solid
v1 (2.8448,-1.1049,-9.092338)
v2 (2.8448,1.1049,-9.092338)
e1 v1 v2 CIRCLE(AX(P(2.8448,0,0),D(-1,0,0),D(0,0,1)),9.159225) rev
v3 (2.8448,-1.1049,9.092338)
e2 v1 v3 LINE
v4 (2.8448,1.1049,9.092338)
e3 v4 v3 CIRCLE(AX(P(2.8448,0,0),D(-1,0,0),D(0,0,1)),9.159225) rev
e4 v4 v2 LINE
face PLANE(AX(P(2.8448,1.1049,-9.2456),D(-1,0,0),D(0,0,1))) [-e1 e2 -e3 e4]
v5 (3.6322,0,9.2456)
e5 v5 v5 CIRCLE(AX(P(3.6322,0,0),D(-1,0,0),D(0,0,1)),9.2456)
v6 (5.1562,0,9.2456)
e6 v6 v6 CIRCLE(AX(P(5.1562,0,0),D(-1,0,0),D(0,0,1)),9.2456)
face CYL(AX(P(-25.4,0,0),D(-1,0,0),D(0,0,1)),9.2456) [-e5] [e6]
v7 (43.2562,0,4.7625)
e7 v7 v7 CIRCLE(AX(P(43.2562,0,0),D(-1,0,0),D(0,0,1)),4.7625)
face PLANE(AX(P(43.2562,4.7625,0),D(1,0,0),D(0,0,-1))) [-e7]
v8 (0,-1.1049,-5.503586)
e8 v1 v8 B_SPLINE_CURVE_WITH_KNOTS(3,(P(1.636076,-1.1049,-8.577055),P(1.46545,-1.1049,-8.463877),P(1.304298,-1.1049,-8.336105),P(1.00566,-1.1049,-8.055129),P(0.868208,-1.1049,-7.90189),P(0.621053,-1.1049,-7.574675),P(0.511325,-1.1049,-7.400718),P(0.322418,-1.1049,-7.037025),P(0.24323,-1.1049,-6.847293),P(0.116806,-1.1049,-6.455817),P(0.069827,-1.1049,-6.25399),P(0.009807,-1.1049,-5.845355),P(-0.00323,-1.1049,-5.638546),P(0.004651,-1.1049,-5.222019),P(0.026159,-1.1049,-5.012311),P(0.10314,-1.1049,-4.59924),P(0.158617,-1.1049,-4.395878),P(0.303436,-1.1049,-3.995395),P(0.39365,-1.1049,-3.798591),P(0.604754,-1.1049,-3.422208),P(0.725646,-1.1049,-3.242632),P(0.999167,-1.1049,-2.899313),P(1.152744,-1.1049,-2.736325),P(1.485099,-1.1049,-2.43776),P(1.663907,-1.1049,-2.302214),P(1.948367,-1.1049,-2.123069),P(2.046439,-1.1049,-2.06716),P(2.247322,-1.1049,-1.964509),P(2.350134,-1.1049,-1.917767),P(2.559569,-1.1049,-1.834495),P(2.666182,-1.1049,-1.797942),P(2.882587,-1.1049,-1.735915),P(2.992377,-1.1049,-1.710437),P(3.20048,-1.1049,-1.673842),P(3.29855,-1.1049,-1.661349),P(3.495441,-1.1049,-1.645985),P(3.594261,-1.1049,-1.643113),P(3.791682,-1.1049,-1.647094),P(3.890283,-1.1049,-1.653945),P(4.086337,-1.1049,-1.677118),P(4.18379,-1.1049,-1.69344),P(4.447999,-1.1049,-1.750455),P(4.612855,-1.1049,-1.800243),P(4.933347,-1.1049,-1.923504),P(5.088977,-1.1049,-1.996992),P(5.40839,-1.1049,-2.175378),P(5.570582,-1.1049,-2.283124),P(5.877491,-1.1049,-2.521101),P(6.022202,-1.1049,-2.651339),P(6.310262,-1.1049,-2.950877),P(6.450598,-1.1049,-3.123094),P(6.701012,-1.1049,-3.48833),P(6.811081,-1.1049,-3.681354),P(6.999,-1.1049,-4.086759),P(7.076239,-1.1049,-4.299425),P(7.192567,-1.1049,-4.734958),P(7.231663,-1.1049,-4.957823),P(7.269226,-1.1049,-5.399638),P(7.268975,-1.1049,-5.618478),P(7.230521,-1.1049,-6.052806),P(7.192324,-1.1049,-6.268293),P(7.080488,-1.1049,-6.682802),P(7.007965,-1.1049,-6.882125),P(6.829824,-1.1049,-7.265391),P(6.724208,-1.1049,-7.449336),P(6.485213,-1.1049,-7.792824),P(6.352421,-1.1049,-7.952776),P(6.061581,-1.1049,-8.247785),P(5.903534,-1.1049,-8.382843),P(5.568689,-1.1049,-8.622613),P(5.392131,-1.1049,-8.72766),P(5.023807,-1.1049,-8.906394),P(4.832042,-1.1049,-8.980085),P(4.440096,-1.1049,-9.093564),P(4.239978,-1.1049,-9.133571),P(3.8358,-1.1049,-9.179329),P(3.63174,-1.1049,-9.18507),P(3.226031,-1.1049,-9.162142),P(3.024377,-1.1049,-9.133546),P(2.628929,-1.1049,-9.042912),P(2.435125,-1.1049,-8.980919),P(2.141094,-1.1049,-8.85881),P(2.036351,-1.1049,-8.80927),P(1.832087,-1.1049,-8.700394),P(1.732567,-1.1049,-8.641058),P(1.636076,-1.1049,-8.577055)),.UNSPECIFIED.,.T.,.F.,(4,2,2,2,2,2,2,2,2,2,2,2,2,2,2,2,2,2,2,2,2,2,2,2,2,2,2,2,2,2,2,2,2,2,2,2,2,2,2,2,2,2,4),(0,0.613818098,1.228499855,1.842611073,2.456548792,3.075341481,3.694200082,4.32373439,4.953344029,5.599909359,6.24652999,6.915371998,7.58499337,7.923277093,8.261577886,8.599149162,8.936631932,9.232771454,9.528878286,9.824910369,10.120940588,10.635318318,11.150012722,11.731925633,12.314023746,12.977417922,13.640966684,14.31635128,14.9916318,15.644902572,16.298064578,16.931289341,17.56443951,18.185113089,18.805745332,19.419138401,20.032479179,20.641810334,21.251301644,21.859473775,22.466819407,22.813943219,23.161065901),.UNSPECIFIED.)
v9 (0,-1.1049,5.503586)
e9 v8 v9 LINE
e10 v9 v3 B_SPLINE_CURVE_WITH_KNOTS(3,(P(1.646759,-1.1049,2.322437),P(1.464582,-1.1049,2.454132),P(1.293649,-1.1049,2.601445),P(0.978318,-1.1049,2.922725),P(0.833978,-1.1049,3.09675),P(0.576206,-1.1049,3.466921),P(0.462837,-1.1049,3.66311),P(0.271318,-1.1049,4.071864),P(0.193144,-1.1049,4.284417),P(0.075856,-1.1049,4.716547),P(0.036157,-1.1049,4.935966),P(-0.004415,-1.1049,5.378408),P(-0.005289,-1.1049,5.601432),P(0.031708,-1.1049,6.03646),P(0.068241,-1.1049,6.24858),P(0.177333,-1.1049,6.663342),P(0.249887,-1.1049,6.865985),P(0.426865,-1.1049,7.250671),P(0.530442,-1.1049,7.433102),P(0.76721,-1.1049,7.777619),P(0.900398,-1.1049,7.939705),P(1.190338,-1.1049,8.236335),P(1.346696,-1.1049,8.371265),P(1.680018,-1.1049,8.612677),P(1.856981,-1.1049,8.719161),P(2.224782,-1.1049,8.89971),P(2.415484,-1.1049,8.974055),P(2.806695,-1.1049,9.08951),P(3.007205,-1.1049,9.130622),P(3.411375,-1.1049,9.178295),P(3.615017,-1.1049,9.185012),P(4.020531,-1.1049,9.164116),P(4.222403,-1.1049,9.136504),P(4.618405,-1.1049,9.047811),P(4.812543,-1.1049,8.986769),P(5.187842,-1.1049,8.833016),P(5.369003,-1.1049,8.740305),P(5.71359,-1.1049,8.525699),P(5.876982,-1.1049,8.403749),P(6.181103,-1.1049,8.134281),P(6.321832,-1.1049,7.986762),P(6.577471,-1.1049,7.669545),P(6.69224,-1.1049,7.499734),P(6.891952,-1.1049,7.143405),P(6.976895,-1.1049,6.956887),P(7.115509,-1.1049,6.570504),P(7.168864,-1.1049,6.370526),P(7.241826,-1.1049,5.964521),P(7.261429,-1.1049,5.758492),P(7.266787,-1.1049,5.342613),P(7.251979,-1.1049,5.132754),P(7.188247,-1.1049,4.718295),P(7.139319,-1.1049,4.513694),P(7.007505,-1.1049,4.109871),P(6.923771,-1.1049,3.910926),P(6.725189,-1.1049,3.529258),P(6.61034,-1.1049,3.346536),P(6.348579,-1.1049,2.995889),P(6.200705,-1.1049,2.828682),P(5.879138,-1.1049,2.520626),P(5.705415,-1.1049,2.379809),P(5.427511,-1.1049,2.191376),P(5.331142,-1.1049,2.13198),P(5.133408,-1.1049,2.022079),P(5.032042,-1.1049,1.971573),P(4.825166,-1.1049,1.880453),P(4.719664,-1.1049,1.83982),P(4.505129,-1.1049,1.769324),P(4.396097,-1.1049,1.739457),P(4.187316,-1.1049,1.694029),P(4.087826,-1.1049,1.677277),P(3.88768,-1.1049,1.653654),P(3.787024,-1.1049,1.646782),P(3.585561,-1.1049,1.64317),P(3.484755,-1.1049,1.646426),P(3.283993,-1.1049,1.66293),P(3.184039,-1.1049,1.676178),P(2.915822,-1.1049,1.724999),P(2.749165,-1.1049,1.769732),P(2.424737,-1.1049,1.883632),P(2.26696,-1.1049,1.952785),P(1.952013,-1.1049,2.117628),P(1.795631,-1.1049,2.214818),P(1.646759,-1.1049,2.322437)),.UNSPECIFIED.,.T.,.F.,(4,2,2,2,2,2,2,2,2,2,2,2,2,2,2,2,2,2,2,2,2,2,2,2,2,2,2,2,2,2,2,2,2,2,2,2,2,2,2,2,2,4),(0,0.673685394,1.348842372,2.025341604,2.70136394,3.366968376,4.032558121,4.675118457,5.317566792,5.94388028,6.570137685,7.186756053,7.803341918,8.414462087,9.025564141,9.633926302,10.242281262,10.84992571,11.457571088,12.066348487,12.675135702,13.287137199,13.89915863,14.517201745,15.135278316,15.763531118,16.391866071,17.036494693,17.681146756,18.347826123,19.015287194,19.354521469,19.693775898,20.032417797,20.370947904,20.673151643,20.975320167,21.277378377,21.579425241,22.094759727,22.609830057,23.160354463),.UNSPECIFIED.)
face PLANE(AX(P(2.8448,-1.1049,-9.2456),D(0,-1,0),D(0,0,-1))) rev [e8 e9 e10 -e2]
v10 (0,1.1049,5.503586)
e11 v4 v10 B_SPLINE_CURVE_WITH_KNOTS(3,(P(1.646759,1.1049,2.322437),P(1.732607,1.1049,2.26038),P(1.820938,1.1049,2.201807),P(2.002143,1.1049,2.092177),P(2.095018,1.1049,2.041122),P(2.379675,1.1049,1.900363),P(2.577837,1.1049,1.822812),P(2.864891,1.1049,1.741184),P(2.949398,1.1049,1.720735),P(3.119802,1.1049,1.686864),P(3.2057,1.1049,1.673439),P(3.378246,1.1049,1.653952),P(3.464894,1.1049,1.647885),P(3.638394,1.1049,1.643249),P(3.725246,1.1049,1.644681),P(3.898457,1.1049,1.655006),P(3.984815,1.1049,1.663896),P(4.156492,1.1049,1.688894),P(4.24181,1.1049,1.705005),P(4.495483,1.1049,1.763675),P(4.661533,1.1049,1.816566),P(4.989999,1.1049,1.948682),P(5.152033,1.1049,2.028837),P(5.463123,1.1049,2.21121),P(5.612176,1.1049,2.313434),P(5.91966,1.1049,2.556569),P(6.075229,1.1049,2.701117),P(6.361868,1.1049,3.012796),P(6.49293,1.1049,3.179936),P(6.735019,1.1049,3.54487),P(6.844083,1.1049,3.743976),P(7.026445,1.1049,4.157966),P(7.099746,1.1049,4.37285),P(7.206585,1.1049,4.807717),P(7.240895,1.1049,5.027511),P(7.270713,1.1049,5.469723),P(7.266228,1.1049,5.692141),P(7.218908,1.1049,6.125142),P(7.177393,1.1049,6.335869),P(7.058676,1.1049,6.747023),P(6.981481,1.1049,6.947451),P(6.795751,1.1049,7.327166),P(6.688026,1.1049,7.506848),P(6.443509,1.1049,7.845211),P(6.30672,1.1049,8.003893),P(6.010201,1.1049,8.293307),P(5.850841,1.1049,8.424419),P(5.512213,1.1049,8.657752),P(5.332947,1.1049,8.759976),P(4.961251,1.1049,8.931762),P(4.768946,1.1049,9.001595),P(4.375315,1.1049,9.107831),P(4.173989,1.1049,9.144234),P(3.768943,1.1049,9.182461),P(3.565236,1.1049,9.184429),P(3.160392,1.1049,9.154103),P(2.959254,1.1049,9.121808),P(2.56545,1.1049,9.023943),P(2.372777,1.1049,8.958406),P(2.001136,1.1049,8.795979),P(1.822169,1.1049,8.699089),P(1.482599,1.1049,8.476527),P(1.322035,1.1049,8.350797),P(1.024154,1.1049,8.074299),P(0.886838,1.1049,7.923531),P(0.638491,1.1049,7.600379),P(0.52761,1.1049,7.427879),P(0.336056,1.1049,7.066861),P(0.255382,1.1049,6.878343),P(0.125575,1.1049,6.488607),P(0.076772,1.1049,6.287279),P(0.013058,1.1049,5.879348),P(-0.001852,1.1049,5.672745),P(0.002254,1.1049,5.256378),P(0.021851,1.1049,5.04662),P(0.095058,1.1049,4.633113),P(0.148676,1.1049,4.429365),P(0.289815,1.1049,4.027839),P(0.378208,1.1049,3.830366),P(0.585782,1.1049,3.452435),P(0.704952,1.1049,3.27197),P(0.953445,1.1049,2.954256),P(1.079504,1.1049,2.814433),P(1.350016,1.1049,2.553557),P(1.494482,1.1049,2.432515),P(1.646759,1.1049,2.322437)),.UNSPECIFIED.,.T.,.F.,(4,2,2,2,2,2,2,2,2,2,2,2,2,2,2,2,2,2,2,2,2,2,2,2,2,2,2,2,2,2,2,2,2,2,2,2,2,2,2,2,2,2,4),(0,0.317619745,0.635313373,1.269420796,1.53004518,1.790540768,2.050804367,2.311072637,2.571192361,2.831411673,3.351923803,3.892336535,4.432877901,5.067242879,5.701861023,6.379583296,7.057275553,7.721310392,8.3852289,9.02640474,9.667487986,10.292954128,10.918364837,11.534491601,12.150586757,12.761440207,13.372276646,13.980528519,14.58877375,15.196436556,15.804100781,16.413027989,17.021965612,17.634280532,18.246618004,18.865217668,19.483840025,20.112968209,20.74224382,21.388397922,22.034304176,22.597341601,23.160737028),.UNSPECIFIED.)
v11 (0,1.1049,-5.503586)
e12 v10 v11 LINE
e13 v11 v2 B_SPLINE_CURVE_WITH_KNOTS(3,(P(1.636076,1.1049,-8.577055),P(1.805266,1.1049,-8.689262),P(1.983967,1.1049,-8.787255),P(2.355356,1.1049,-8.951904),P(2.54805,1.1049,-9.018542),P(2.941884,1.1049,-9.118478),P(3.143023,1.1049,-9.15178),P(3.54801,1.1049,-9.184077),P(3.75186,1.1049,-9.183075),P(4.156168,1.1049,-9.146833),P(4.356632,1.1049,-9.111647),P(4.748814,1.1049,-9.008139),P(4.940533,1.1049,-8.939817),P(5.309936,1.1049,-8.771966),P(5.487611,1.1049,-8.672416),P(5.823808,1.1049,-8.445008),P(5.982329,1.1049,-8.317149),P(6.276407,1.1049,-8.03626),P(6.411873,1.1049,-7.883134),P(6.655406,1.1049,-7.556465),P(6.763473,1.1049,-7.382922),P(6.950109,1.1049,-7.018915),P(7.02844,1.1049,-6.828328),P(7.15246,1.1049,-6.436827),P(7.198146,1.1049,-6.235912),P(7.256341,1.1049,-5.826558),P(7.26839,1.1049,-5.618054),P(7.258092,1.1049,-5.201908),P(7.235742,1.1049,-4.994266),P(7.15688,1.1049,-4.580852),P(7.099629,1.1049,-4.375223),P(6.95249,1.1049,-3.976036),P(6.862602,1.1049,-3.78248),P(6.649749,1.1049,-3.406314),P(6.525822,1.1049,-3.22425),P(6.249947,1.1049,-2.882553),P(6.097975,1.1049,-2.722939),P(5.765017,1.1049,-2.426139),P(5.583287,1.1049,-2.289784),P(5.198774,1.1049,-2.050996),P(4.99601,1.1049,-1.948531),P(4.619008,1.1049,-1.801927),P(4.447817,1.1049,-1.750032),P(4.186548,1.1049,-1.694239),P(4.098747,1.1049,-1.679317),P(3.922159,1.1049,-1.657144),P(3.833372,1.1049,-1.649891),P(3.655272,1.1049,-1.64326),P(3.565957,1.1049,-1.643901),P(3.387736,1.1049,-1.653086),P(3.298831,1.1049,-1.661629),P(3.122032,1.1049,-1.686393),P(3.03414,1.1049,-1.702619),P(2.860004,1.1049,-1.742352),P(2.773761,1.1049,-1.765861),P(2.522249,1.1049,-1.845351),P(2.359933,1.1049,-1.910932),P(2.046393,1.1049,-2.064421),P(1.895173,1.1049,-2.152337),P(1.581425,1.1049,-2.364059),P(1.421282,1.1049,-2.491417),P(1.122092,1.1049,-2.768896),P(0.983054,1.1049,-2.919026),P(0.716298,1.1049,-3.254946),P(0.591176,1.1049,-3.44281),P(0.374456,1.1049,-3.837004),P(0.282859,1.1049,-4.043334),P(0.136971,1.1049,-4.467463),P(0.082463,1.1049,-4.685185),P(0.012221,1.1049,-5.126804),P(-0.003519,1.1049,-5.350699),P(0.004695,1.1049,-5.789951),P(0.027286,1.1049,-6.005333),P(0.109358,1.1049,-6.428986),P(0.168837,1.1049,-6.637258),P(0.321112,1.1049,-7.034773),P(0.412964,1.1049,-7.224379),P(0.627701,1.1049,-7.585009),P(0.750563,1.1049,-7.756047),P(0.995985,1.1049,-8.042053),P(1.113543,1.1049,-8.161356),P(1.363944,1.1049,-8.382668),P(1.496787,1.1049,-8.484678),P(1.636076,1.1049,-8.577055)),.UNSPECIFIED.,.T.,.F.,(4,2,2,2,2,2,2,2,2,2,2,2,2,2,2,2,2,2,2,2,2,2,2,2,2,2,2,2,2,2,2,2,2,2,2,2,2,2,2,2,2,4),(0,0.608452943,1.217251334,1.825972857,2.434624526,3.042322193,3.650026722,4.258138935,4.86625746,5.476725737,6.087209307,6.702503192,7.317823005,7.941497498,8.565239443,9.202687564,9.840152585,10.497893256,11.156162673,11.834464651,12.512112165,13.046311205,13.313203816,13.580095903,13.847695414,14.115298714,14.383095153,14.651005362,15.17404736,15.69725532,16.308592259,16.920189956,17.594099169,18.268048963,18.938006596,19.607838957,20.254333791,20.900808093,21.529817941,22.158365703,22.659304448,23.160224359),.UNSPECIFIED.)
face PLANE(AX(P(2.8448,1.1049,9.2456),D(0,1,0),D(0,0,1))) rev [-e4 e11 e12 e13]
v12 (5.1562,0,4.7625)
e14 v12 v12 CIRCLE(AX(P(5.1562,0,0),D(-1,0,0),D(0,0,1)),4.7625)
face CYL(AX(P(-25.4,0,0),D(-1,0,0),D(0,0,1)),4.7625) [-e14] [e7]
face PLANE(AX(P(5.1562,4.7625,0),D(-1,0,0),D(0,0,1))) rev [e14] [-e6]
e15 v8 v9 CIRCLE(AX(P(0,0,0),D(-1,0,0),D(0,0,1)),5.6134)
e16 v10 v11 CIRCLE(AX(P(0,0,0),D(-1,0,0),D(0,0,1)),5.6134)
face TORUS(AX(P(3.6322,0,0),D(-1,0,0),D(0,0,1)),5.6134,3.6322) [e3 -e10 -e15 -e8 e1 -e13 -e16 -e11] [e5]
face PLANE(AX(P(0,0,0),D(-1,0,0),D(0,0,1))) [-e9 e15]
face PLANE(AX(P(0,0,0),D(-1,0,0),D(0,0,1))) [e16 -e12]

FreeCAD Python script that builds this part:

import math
import FreeCAD as App
import Part
import Sketcher
Q = App.Units.Quantity

doc = App.newDocument("Part")
body = doc.addObject("PartDesign::Body", "Body")

sketch1 = body.newObject("Sketcher::SketchObject", "Sketch")
sketch1.AttachmentSupport = (doc.getObject("XY_Plane"), [""])
sketch1.MapMode = "FlatFace"
sketch1.addGeometry(Part.LineSegment(App.Vector(5.2, 4.8, 0), App.Vector(5.2, 9.2, 0)), False)
sketch1.addGeometry(Part.LineSegment(App.Vector(5.2, 9.2, 0), App.Vector(3.6, 9.2, 0)), False)
sketch1.addGeometry(Part.ArcOfCircle(Part.Circle(App.Vector(3.6, 5.6, 0), App.Vector(0, 0, 1), 3.6), math.radians(90), math.radians(180)), False)
sketch1.addGeometry(Part.LineSegment(App.Vector(0, 5.6, 0), App.Vector(0, 0, 0)), False)
sketch1.addGeometry(Part.LineSegment(App.Vector(0, 0, 0), App.Vector(43.3, 0, 0)), False)
sketch1.addGeometry(Part.LineSegment(App.Vector(43.3, 0, 0), App.Vector(43.3, 4.8, 0)), False)
sketch1.addGeometry(Part.LineSegment(App.Vector(43.3, 4.8, 0), App.Vector(5.2, 4.8, 0)), False)
sketch1.addConstraint(Sketcher.Constraint("Coincident", 0, 2, 1, 1))
sketch1.addConstraint(Sketcher.Constraint("Tangent", 1, 2, 2, 1))
sketch1.addConstraint(Sketcher.Constraint("Tangent", 2, 2, 3, 1))
sketch1.addConstraint(Sketcher.Constraint("Coincident", 3, 2, 4, 1))
sketch1.addConstraint(Sketcher.Constraint("Coincident", 4, 2, 5, 1))
sketch1.addConstraint(Sketcher.Constraint("Coincident", 5, 2, 6, 1))
sketch1.addConstraint(Sketcher.Constraint("Coincident", 6, 2, 0, 1))
sketch1.addConstraint(Sketcher.Constraint("Vertical", 0))
sketch1.addConstraint(Sketcher.Constraint("Horizontal", 1))
sketch1.addConstraint(Sketcher.Constraint("Vertical", 3))
sketch1.addConstraint(Sketcher.Constraint("Horizontal", 4))
sketch1.addConstraint(Sketcher.Constraint("Vertical", 5))
sketch1.addConstraint(Sketcher.Constraint("Horizontal", 6))
sketch1.addConstraint(Sketcher.Constraint("Coincident", 3, 2, -1, 1))
sketch1.addConstraint(Sketcher.Constraint("DistanceX", 6, 2, 6, 1, Q("1.5 in")))
sketch1.addConstraint(Sketcher.Constraint("Radius", 2, Q("0.143 in")))
sketch1.addConstraint(Sketcher.Constraint("DistanceX", 1, 2, 1, 1, Q("0.06 in")))
sketch1.addConstraint(Sketcher.Constraint("DistanceY", 3, 2, 3, 1, Q("0.221 in")))
sketch1.addConstraint(Sketcher.Constraint("DistanceY", 5, 1, 5, 2, Q("0.1875 in")))
revolution = body.newObject("PartDesign::Revolution", "Revolution")
revolution.Profile = sketch1
revolution.ReferenceAxis = (sketch1, ["H_Axis"])
revolution.Angle = 360

sketch2 = body.newObject("Sketcher::SketchObject", "Sketch001")
sketch2.AttachmentSupport = (doc.getObject("YZ_Plane"), [""])
sketch2.MapMode = "FlatFace"
sketch2.addGeometry(Part.LineSegment(App.Vector(1.1, 9.2, 0), App.Vector(-1.1, 9.2, 0)), False)
sketch2.addGeometry(Part.LineSegment(App.Vector(-1.1, 9.2, 0), App.Vector(-1.1, -9.2, 0)), False)
sketch2.addGeometry(Part.LineSegment(App.Vector(-1.1, -9.2, 0), App.Vector(1.1, -9.2, 0)), False)
sketch2.addGeometry(Part.LineSegment(App.Vector(1.1, -9.2, 0), App.Vector(1.1, 9.2, 0)), False)
sketch2.addConstraint(Sketcher.Constraint("Coincident", 0, 2, 1, 1))
sketch2.addConstraint(Sketcher.Constraint("Coincident", 1, 2, 2, 1))
sketch2.addConstraint(Sketcher.Constraint("Coincident", 2, 2, 3, 1))
sketch2.addConstraint(Sketcher.Constraint("Coincident", 3, 2, 0, 1))
sketch2.addConstraint(Sketcher.Constraint("Horizontal", 0))
sketch2.addConstraint(Sketcher.Constraint("Vertical", 1))
sketch2.addConstraint(Sketcher.Constraint("Horizontal", 2))
sketch2.addConstraint(Sketcher.Constraint("Vertical", 3))
sketch2.addConstraint(Sketcher.Constraint("Symmetric", 0, 2, 2, 2, -1, 1))
sketch2.addConstraint(Sketcher.Constraint("DistanceX", 0, 2, 0, 1, Q("0.087 in")))
sketch2.addConstraint(Sketcher.Constraint("DistanceY", 1, 2, 1, 1, Q("0.728 in")))
pocket1 = body.newObject("PartDesign::Pocket", "Pocket")
pocket1.Profile = sketch2
pocket1.Length = Q("0.112 in")
pocket1.Reversed = True

doc.recompute()
